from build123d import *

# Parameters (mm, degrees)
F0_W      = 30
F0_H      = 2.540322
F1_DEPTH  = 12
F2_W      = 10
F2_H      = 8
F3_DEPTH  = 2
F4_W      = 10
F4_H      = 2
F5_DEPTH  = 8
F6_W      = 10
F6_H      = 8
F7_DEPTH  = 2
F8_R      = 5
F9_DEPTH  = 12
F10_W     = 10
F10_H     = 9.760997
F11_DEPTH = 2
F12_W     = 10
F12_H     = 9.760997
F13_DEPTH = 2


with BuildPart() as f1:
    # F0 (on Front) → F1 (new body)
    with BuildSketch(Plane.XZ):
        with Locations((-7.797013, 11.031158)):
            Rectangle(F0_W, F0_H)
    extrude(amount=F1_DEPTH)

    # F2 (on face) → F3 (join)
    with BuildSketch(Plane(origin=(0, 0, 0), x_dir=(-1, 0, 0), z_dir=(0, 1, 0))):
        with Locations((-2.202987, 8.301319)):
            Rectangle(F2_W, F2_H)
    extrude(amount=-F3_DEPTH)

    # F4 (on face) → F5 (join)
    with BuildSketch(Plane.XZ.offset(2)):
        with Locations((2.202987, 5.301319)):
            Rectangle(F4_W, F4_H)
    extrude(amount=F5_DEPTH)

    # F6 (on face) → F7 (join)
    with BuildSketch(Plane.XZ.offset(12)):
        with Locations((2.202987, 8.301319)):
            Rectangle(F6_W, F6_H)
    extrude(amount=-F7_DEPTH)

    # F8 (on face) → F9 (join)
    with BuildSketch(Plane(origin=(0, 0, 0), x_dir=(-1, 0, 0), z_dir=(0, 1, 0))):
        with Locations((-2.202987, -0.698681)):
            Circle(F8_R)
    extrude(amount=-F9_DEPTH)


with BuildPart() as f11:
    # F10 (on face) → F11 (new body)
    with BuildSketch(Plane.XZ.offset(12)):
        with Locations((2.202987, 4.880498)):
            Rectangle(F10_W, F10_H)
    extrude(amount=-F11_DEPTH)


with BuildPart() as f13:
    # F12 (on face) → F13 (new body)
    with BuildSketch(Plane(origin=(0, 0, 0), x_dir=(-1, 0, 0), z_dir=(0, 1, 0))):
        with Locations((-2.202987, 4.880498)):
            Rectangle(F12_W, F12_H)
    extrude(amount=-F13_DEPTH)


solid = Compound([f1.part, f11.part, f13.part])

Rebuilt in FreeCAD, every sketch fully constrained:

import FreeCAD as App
import Part
import Sketcher

V = App.Vector


def add_polygon(sketch, points):
    """Adds a closed chain of lines whose ends are joined by coincident constraints."""
    first, n = sketch.GeometryCount, len(points)
    for a, b in zip(points, points[1:] + points[:1]):
        sketch.addGeometry(Part.LineSegment(App.Vector(*a, 0), App.Vector(*b, 0)), False)
    for i in range(n):
        sketch.addConstraint(Sketcher.Constraint("Coincident", first + i, 2, first + (i + 1) % n, 1))

doc = App.newDocument("Part")
body = doc.addObject("PartDesign::Body", "Body")
body.AllowCompound = True

# Sketch on XZ plane
sketch1 = body.newObject("Sketcher::SketchObject", "Sketch")
sketch1.AttachmentSupport = (doc.getObject("XZ_Plane"), [""])
sketch1.MapMode = "FlatFace"
add_polygon(sketch1, [(-22.8, 12.3), (-22.8, 9.8), (7.2, 9.8), (7.2, 12.3)])  # lines 0-3
sketch1.addConstraint([
    Sketcher.Constraint("Vertical", 0),
    Sketcher.Constraint("Horizontal", 1),
    Sketcher.Constraint("Vertical", 2),
    Sketcher.Constraint("Horizontal", 3),
    Sketcher.Constraint("DistanceX", 1, 1, 1, 2, 30.0),
    Sketcher.Constraint("DistanceY", 0, 2, 0, 1, 2.540322),
    Sketcher.Constraint("DistanceY", -1, 1, 2, 2, 12.301319),
    Sketcher.Constraint("DistanceX", 0, 2, -1, 1, 22.797013),
])
pad1 = body.newObject("PartDesign::Pad", "Pad")
pad1.Profile = sketch1
pad1.Length = 12

# Sketch on XZ plane
sketch2 = body.newObject("Sketcher::SketchObject", "Sketch001")
sketch2.AttachmentSupport = (doc.getObject("XZ_Plane"), [""])
sketch2.MapMode = "FlatFace"
add_polygon(sketch2, [(7, 12), (7, 4), (-3, 4), (-3, 12)])  # lines 0-3
sketch2.addConstraint([
    Sketcher.Constraint("Vertical", 0),
    Sketcher.Constraint("Horizontal", 1),
    Sketcher.Constraint("Vertical", 2),
    Sketcher.Constraint("Horizontal", 3),
    Sketcher.Constraint("DistanceX", 1, 2, 1, 1, 10.0),
    Sketcher.Constraint("DistanceY", 0, 2, 0, 1, 8.0),
    Sketcher.Constraint("DistanceY", -1, 1, 0, 2, 4.301319),
    Sketcher.Constraint("DistanceX", -1, 1, 0, 2, 7.202987),
])
pad2 = body.newObject("PartDesign::Pad", "Pad001")
pad2.Profile = sketch2
pad2.Length = 2

# Sketch on XZ plane
sketch3 = body.newObject("Sketcher::SketchObject", "Sketch002")
sketch3.AttachmentSupport = (doc.getObject("XZ_Plane"), [""])
sketch3.MapMode = "FlatFace"
sketch3.AttachmentOffset = App.Placement(V(0, 0, 2), App.Rotation())
add_polygon(sketch3, [(-2.8, 6.3), (-2.8, 4.3), (7.2, 4.3), (7.2, 6.3)])  # lines 0-3
sketch3.addConstraint([
    Sketcher.Constraint("Vertical", 0),
    Sketcher.Constraint("Horizontal", 1),
    Sketcher.Constraint("Vertical", 2),
    Sketcher.Constraint("Horizontal", 3),
    Sketcher.Constraint("DistanceX", 1, 1, 1, 2, 10.0),
    Sketcher.Constraint("DistanceY", 0, 2, 0, 1, 2.0),
    Sketcher.Constraint("DistanceY", -1, 1, 0, 2, 4.301319),
    Sketcher.Constraint("DistanceX", 0, 2, -1, 1, 2.797013),
])
pad3 = body.newObject("PartDesign::Pad", "Pad002")
pad3.Profile = sketch3
pad3.Length = 8

# Sketch on XZ plane
sketch4 = body.newObject("Sketcher::SketchObject", "Sketch003")
sketch4.AttachmentSupport = (doc.getObject("XZ_Plane"), [""])
sketch4.MapMode = "FlatFace"
sketch4.AttachmentOffset = App.Placement(V(0, 0, 12), App.Rotation())
add_polygon(sketch4, [(-3, 12), (-3, 4), (7, 4), (7, 12)])  # lines 0-3
sketch4.addConstraint([
    Sketcher.Constraint("Vertical", 0),
    Sketcher.Constraint("Horizontal", 1),
    Sketcher.Constraint("Vertical", 2),
    Sketcher.Constraint("Horizontal", 3),
    Sketcher.Constraint("DistanceX", 1, 1, 1, 2, 10.0),
    Sketcher.Constraint("DistanceY", 0, 2, 0, 1, 8.0),
    Sketcher.Constraint("DistanceY", -1, 1, 0, 2, 4.301319),
    Sketcher.Constraint("DistanceX", 0, 2, -1, 1, 2.797013),
])
pad4 = body.newObject("PartDesign::Pad", "Pad003")
pad4.Profile = sketch4
pad4.Length = 2
pad4.Reversed = True

# Sketch on XZ plane
sketch5 = body.newObject("Sketcher::SketchObject", "Sketch004")
sketch5.AttachmentSupport = (doc.getObject("XZ_Plane"), [""])
sketch5.MapMode = "FlatFace"
sketch5.addGeometry(Part.Circle(V(2, -1, 0), V(0, 0, 1), 5), False)
sketch5.addConstraint([
    Sketcher.Constraint("Diameter", 0, 10.0),
    Sketcher.Constraint("DistanceY", 0, 3, -1, 1, 0.698681),
    Sketcher.Constraint("DistanceX", -1, 1, 0, 3, 2.202987),
])
pad5 = body.newObject("PartDesign::Pad", "Pad004")
pad5.Profile = sketch5
pad5.Length = 12
body2 = doc.addObject("PartDesign::Body", "Body001")

# Sketch on XZ plane
sketch6 = body2.newObject("Sketcher::SketchObject", "Sketch005")
sketch6.AttachmentSupport = (doc.getObject("XZ_Plane001"), [""])
sketch6.MapMode = "FlatFace"
sketch6.AttachmentOffset = App.Placement(V(0, 0, 12), App.Rotation())
add_polygon(sketch6, [(-3, 10), (-3, 0), (7, 0), (7, 10)])  # lines 0-3
sketch6.addConstraint([
    Sketcher.Constraint("Vertical", 0),
    Sketcher.Constraint("Horizontal", 1),
    Sketcher.Constraint("Vertical", 2),
    Sketcher.Constraint("Horizontal", 3),
    Sketcher.Constraint("PointOnObject", 0, 2, -1),
    Sketcher.Constraint("DistanceX", 1, 1, 1, 2, 10.0),
    Sketcher.Constraint("DistanceY", 0, 2, 0, 1, 9.760997),
    Sketcher.Constraint("DistanceX", 0, 2, -1, 1, 2.797013),
])
pad6 = body2.newObject("PartDesign::Pad", "Pad005")
pad6.Profile = sketch6
pad6.Length = 2
pad6.Reversed = True
body3 = doc.addObject("PartDesign::Body", "Body002")

# Sketch on XZ plane
sketch7 = body3.newObject("Sketcher::SketchObject", "Sketch006")
sketch7.AttachmentSupport = (doc.getObject("XZ_Plane002"), [""])
sketch7.MapMode = "FlatFace"
add_polygon(sketch7, [(7, 10), (7, 0), (-3, 0), (-3, 10)])  # lines 0-3
sketch7.addConstraint([
    Sketcher.Constraint("Vertical", 0),
    Sketcher.Constraint("Horizontal", 1),
    Sketcher.Constraint("Vertical", 2),
    Sketcher.Constraint("Horizontal", 3),
    Sketcher.Constraint("PointOnObject", 0, 2, -1),
    Sketcher.Constraint("DistanceX", 1, 2, 1, 1, 10.0),
    Sketcher.Constraint("DistanceY", 0, 2, 0, 1, 9.760997),
    Sketcher.Constraint("DistanceX", -1, 1, 0, 2, 7.202987),
])
pad7 = body3.newObject("PartDesign::Pad", "Pad006")
pad7.Profile = sketch7
pad7.Length = 2

doc.recompute()
